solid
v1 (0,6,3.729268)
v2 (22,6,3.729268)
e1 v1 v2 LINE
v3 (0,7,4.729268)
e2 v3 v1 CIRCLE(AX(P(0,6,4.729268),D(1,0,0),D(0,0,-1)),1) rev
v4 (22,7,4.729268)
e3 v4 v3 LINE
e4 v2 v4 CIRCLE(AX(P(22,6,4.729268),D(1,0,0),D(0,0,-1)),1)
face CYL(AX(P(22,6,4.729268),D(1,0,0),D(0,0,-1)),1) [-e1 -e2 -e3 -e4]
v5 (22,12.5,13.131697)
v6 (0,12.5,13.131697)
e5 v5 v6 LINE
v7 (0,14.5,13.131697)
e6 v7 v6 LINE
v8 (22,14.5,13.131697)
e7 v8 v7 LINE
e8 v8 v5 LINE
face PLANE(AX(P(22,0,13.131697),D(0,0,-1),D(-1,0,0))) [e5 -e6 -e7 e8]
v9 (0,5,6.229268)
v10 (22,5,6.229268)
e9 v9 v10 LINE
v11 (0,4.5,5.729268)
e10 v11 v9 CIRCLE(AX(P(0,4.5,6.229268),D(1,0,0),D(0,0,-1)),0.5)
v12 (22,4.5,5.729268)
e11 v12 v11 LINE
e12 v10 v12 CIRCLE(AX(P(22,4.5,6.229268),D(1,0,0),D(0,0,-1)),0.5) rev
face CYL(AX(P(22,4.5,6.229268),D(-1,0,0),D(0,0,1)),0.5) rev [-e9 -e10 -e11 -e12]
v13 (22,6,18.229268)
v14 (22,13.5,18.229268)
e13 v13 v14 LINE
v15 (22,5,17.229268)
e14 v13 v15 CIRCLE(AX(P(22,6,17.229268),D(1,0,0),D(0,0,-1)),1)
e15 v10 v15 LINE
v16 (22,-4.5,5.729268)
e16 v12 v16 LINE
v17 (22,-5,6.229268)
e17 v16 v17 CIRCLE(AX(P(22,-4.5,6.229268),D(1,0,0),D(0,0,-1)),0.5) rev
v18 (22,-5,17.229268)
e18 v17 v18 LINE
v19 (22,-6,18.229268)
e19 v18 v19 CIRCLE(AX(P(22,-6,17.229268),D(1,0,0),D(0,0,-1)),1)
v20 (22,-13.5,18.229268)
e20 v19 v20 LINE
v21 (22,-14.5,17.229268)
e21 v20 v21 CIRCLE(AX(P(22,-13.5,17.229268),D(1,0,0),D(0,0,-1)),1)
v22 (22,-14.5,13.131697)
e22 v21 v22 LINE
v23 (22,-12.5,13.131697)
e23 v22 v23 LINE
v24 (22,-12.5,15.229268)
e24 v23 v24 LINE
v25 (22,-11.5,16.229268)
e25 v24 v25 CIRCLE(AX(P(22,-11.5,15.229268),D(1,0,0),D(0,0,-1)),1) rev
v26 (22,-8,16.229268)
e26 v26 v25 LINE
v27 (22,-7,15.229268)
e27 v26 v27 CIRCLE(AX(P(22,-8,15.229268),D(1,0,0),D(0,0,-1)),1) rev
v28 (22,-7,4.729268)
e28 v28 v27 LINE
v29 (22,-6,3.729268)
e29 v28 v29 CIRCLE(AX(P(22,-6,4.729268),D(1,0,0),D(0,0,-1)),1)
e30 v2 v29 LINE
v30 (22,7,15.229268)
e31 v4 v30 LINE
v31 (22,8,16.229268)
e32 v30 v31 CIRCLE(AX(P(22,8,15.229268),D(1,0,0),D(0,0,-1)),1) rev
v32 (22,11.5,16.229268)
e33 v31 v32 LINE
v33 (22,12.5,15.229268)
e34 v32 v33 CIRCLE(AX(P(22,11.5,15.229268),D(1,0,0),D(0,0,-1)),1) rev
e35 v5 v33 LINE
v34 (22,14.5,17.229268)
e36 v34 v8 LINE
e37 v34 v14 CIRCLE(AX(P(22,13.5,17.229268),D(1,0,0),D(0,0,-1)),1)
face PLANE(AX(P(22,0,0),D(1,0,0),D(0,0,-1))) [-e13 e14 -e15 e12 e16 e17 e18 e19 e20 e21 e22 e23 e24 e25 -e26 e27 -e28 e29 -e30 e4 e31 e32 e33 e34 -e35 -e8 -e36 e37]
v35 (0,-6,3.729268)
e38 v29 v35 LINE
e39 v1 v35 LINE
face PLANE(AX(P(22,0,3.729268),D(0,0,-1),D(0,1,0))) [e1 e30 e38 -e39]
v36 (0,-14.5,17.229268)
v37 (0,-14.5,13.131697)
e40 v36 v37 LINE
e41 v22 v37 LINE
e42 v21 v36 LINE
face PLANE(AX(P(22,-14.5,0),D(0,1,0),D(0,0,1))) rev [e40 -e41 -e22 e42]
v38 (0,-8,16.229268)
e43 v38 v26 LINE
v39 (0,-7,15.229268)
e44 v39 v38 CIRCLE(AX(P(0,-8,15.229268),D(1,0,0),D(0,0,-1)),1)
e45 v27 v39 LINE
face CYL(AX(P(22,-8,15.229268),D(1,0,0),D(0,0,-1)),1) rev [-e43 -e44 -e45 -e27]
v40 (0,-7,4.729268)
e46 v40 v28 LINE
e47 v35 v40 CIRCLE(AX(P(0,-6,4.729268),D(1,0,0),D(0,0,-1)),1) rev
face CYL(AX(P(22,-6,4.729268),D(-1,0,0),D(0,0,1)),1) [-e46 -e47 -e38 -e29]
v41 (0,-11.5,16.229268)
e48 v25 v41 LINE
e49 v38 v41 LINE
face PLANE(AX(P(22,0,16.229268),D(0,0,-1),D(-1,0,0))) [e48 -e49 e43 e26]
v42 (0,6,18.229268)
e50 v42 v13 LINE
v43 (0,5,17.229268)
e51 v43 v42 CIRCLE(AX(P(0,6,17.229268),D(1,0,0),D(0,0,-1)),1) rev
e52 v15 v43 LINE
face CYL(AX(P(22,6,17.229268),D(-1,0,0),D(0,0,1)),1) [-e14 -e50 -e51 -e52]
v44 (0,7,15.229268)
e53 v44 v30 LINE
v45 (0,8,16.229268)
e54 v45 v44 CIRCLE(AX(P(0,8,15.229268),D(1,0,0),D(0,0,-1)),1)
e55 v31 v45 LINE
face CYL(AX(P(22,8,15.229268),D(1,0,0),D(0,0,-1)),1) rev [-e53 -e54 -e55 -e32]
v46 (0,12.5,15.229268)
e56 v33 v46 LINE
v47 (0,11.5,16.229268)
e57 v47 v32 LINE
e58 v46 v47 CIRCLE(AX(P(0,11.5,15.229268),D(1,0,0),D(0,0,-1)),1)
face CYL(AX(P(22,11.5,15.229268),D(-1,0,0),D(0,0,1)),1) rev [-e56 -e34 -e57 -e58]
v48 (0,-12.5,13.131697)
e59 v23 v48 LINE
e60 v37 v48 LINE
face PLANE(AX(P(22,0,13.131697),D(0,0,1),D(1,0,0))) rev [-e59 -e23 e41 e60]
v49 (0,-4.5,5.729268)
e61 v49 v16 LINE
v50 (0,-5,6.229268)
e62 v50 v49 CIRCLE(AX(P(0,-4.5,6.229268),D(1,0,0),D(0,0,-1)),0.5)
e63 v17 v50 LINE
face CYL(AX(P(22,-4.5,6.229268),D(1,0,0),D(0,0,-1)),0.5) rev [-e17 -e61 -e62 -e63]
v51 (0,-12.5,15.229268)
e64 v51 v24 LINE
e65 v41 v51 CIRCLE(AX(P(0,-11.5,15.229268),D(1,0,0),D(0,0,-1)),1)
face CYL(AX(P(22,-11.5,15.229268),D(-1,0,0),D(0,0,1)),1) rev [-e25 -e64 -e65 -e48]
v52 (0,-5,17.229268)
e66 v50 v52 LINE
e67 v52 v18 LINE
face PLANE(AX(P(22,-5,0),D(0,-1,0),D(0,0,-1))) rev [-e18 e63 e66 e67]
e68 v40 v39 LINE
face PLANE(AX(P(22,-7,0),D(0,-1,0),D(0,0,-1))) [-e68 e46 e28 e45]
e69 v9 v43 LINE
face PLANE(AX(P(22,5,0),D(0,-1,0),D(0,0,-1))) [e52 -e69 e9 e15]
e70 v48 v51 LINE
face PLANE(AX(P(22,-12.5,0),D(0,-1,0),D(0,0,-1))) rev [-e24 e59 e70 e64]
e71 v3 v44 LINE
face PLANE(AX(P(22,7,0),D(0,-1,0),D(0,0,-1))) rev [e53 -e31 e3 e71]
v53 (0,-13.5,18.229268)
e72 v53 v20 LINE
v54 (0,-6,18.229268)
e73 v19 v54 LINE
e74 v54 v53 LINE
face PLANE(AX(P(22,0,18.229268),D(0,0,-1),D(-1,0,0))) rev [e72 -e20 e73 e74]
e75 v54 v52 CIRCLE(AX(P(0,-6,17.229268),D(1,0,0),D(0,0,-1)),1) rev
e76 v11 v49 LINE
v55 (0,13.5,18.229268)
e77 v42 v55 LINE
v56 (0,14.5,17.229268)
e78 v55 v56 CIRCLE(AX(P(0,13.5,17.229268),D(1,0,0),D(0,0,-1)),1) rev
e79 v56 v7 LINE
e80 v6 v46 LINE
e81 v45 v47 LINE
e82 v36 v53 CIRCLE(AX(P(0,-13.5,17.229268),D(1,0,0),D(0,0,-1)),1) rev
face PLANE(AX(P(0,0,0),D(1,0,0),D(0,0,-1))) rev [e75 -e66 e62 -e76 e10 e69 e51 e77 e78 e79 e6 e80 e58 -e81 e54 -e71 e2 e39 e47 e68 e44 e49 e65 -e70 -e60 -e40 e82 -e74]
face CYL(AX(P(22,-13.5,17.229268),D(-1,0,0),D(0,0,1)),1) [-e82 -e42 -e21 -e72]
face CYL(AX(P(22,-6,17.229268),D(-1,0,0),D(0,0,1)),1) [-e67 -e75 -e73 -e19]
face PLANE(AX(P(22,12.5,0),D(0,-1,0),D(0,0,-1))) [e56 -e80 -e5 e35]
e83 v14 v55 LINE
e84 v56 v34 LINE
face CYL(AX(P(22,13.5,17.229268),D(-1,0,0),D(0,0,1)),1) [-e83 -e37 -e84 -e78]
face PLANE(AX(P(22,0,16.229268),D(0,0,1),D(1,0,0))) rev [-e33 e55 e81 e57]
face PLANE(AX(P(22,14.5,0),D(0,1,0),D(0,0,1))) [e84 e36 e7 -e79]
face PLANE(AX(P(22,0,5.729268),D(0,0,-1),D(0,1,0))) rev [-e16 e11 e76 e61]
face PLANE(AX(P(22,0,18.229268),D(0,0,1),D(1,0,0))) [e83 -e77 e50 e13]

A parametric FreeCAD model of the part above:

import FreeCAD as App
import Part
import Sketcher
from FreeCAD import Vector


def edges_at(feature, points):
    """Names of the edges that pass closest to the given points."""
    edges = feature.Shape.Edges
    near = lambda p: min(range(len(edges)), key=lambda i: edges[i].distToShape(Part.Vertex(*p))[0])
    return sorted({f"Edge{near(p) + 1}" for p in points})

doc = App.newDocument("Part")
body = doc.addObject("PartDesign::Body", "Body")

# Sketch on YZ plane
sketch1 = body.newObject("Sketcher::SketchObject", "Sketch")
sketch1.AttachmentSupport = (doc.getObject("YZ_Plane"), [""])
sketch1.MapMode = "FlatFace"
sketch1.addGeometry(Part.LineSegment(Vector(-5, 5.7, 0), Vector(-5, 18.2, 0)), False)
sketch1.addGeometry(Part.LineSegment(Vector(-5, 18.2, 0), Vector(-14.5, 18.2, 0)), False)
sketch1.addGeometry(Part.LineSegment(Vector(-14.5, 18.2, 0), Vector(-14.5, 13.1, 0)), False)
sketch1.addGeometry(Part.LineSegment(Vector(-14.5, 13.1, 0), Vector(-12.5, 13.1, 0)), False)
sketch1.addGeometry(Part.LineSegment(Vector(-12.5, 13.1, 0), Vector(-12.5, 16.2, 0)), False)
sketch1.addGeometry(Part.LineSegment(Vector(-12.5, 16.2, 0), Vector(-7, 16.2, 0)), False)
sketch1.addGeometry(Part.LineSegment(Vector(-7, 16.2, 0), Vector(-7, 3.7, 0)), False)
sketch1.addGeometry(Part.LineSegment(Vector(-7, 3.7, 0), Vector(7, 3.7, 0)), False)
sketch1.addGeometry(Part.LineSegment(Vector(7, 3.7, 0), Vector(7, 16.2, 0)), False)
sketch1.addGeometry(Part.LineSegment(Vector(7, 16.2, 0), Vector(12.5, 16.2, 0)), False)
sketch1.addGeometry(Part.LineSegment(Vector(12.5, 16.2, 0), Vector(12.5, 13.1, 0)), False)
sketch1.addGeometry(Part.LineSegment(Vector(12.5, 13.1, 0), Vector(14.5, 13.1, 0)), False)
sketch1.addGeometry(Part.LineSegment(Vector(14.5, 13.1, 0), Vector(14.5, 18.2, 0)), False)
sketch1.addGeometry(Part.LineSegment(Vector(14.5, 18.2, 0), Vector(5, 18.2, 0)), False)
sketch1.addGeometry(Part.LineSegment(Vector(5, 18.2, 0), Vector(5, 5.7, 0)), False)
sketch1.addGeometry(Part.LineSegment(Vector(5, 5.7, 0), Vector(-5, 5.7, 0)), False)
sketch1.addConstraint(Sketcher.Constraint("Coincident", 0, 2, 1, 1))
sketch1.addConstraint(Sketcher.Constraint("Coincident", 1, 2, 2, 1))
sketch1.addConstraint(Sketcher.Constraint("Coincident", 2, 2, 3, 1))
sketch1.addConstraint(Sketcher.Constraint("Coincident", 3, 2, 4, 1))
sketch1.addConstraint(Sketcher.Constraint("Coincident", 4, 2, 5, 1))
sketch1.addConstraint(Sketcher.Constraint("Coincident", 5, 2, 6, 1))
sketch1.addConstraint(Sketcher.Constraint("Coincident", 6, 2, 7, 1))
sketch1.addConstraint(Sketcher.Constraint("Coincident", 7, 2, 8, 1))
sketch1.addConstraint(Sketcher.Constraint("Coincident", 8, 2, 9, 1))
sketch1.addConstraint(Sketcher.Constraint("Coincident", 9, 2, 10, 1))
sketch1.addConstraint(Sketcher.Constraint("Coincident", 10, 2, 11, 1))
sketch1.addConstraint(Sketcher.Constraint("Coincident", 11, 2, 12, 1))
sketch1.addConstraint(Sketcher.Constraint("Coincident", 12, 2, 13, 1))
sketch1.addConstraint(Sketcher.Constraint("Coincident", 13, 2, 14, 1))
sketch1.addConstraint(Sketcher.Constraint("Coincident", 14, 2, 15, 1))
sketch1.addConstraint(Sketcher.Constraint("Coincident", 15, 2, 0, 1))
sketch1.addConstraint(Sketcher.Constraint("Vertical", 0))
sketch1.addConstraint(Sketcher.Constraint("Horizontal", 1))
sketch1.addConstraint(Sketcher.Constraint("Vertical", 2))
sketch1.addConstraint(Sketcher.Constraint("Horizontal", 3))
sketch1.addConstraint(Sketcher.Constraint("Vertical", 4))
sketch1.addConstraint(Sketcher.Constraint("Horizontal", 5))
sketch1.addConstraint(Sketcher.Constraint("Vertical", 6))
sketch1.addConstraint(Sketcher.Constraint("Horizontal", 7))
sketch1.addConstraint(Sketcher.Constraint("Vertical", 8))
sketch1.addConstraint(Sketcher.Constraint("Horizontal", 9))
sketch1.addConstraint(Sketcher.Constraint("Vertical", 10))
sketch1.addConstraint(Sketcher.Constraint("Horizontal", 11))
sketch1.addConstraint(Sketcher.Constraint("Vertical", 12))
sketch1.addConstraint(Sketcher.Constraint("Horizontal", 13))
sketch1.addConstraint(Sketcher.Constraint("Vertical", 14))
sketch1.addConstraint(Sketcher.Constraint("Horizontal", 15))
sketch1.addConstraint(Sketcher.Constraint("Symmetric", 5, 2, 8, 2, -2))
sketch1.addConstraint(Sketcher.Constraint("Symmetric", 3, 2, 10, 2, -2))
sketch1.addConstraint(Sketcher.Constraint("Symmetric", 1, 2, 12, 2, -2))
sketch1.addConstraint(Sketcher.Constraint("Equal", 1, 13))
sketch1.addConstraint(Sketcher.Constraint("Equal", 0, 6))
sketch1.addConstraint(Sketcher.Constraint("DistanceX", 3, 1, 3, 2, 2.0))
sketch1.addConstraint(Sketcher.Constraint("DistanceX", 7, 1, 7, 2, 14.0))
sketch1.addConstraint(Sketcher.Constraint("DistanceX", 15, 2, 15, 1, 10.0))
sketch1.addConstraint(Sketcher.Constraint("DistanceX", 1, 2, 1, 1, 9.5))
sketch1.addConstraint(Sketcher.Constraint("DistanceY", 0, 1, 0, 2, 12.5))
sketch1.addConstraint(Sketcher.Constraint("DistanceY", 4, 2, 1, 2, 2.0))
sketch1.addConstraint(Sketcher.Constraint("DistanceY", 2, 2, 2, 1, 5.097571))
sketch1.addConstraint(Sketcher.Constraint("DistanceY", -1, 1, 0, 2, 18.229268))
pad1 = body.newObject("PartDesign::Pad", "Pad")
pad1.Profile = sketch1
pad1.Length = 22
doc.recompute()

fillet = body.newObject("PartDesign::Fillet", "Fillet")
fillet.Base = (pad1, edges_at(pad1, [
    (11, -14.5, 18.229),
    (11, -5, 18.229),
    (11, 5, 18.229),
    (11, 14.5, 18.229),
    (11, 12.5, 16.229),
    (11, 7, 16.229),
    (11, 7, 3.729),
    (11, -7, 3.729),
    (11, -7, 16.229),
    (11, -12.5, 16.229),
]))
fillet.Radius = 1
doc.recompute()

fillet2 = body.newObject("PartDesign::Fillet", "Fillet001")
fillet2.Base = (fillet, edges_at(fillet, [(11, -5, 5.729), (11, 5, 5.729)]))
fillet2.Radius = 0.5

doc.recompute()
